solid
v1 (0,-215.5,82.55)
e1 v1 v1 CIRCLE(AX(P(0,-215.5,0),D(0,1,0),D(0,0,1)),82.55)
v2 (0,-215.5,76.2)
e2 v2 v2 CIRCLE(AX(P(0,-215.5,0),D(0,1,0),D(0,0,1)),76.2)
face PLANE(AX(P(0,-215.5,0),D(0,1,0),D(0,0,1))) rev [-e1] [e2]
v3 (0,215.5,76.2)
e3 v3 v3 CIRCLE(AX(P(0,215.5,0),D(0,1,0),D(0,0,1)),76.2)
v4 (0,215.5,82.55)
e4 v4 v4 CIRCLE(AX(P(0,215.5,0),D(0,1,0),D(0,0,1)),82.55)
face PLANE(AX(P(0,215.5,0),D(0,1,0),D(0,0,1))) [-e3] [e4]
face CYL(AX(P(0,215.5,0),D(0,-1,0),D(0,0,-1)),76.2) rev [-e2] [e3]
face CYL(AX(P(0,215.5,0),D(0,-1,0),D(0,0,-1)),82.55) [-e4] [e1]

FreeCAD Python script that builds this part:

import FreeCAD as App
import Part
import Sketcher

V = App.Vector
Q = App.Units.Quantity

doc = App.newDocument("Part")
params = doc.addObject("Spreadsheet::Sheet", "Params")
for row, (alias, value) in enumerate([
    ("sketch1_diameter", "6 in"),
    ("sketch1_diameter2", "6.5 in"),
    ("pad1_length", "431 mm"),
], start=1):
    params.set(f"A{row}", alias)
    params.set(f"B{row}", "=" + value)
    params.setAlias(f"B{row}", alias)

body = doc.addObject("PartDesign::Body", "Body")

# Sketch on XZ plane
sketch1 = body.newObject("Sketcher::SketchObject", "Sketch")
sketch1.AttachmentSupport = (doc.getObject("XZ_Plane"), [""])
sketch1.MapMode = "FlatFace"
sketch1.addGeometry(Part.Circle(V(0, 0, 0), V(0, 0, 1), 83), False)
sketch1.addGeometry(Part.Circle(V(0, 0, 0), V(0, 0, 1), 76), False)
sketch1.addConstraint(Sketcher.Constraint("Coincident", 0, 3, -1, 1))
sketch1.addConstraint(Sketcher.Constraint("Coincident", 1, 3, -1, 1))
sketch1.addConstraint(Sketcher.Constraint("Diameter", 1, Q("6 in")))
sketch1.addConstraint(Sketcher.Constraint("Diameter", 0, Q("6.5 in")))
sketch1.setExpression("Constraints[2]", "Params.sketch1_diameter")
sketch1.setExpression("Constraints[3]", "Params.sketch1_diameter2")
pad1 = body.newObject("PartDesign::Pad", "Pad")
pad1.Profile = sketch1
pad1.setExpression("Length", "Params.pad1_length")
pad1.Midplane = True

doc.recompute()
